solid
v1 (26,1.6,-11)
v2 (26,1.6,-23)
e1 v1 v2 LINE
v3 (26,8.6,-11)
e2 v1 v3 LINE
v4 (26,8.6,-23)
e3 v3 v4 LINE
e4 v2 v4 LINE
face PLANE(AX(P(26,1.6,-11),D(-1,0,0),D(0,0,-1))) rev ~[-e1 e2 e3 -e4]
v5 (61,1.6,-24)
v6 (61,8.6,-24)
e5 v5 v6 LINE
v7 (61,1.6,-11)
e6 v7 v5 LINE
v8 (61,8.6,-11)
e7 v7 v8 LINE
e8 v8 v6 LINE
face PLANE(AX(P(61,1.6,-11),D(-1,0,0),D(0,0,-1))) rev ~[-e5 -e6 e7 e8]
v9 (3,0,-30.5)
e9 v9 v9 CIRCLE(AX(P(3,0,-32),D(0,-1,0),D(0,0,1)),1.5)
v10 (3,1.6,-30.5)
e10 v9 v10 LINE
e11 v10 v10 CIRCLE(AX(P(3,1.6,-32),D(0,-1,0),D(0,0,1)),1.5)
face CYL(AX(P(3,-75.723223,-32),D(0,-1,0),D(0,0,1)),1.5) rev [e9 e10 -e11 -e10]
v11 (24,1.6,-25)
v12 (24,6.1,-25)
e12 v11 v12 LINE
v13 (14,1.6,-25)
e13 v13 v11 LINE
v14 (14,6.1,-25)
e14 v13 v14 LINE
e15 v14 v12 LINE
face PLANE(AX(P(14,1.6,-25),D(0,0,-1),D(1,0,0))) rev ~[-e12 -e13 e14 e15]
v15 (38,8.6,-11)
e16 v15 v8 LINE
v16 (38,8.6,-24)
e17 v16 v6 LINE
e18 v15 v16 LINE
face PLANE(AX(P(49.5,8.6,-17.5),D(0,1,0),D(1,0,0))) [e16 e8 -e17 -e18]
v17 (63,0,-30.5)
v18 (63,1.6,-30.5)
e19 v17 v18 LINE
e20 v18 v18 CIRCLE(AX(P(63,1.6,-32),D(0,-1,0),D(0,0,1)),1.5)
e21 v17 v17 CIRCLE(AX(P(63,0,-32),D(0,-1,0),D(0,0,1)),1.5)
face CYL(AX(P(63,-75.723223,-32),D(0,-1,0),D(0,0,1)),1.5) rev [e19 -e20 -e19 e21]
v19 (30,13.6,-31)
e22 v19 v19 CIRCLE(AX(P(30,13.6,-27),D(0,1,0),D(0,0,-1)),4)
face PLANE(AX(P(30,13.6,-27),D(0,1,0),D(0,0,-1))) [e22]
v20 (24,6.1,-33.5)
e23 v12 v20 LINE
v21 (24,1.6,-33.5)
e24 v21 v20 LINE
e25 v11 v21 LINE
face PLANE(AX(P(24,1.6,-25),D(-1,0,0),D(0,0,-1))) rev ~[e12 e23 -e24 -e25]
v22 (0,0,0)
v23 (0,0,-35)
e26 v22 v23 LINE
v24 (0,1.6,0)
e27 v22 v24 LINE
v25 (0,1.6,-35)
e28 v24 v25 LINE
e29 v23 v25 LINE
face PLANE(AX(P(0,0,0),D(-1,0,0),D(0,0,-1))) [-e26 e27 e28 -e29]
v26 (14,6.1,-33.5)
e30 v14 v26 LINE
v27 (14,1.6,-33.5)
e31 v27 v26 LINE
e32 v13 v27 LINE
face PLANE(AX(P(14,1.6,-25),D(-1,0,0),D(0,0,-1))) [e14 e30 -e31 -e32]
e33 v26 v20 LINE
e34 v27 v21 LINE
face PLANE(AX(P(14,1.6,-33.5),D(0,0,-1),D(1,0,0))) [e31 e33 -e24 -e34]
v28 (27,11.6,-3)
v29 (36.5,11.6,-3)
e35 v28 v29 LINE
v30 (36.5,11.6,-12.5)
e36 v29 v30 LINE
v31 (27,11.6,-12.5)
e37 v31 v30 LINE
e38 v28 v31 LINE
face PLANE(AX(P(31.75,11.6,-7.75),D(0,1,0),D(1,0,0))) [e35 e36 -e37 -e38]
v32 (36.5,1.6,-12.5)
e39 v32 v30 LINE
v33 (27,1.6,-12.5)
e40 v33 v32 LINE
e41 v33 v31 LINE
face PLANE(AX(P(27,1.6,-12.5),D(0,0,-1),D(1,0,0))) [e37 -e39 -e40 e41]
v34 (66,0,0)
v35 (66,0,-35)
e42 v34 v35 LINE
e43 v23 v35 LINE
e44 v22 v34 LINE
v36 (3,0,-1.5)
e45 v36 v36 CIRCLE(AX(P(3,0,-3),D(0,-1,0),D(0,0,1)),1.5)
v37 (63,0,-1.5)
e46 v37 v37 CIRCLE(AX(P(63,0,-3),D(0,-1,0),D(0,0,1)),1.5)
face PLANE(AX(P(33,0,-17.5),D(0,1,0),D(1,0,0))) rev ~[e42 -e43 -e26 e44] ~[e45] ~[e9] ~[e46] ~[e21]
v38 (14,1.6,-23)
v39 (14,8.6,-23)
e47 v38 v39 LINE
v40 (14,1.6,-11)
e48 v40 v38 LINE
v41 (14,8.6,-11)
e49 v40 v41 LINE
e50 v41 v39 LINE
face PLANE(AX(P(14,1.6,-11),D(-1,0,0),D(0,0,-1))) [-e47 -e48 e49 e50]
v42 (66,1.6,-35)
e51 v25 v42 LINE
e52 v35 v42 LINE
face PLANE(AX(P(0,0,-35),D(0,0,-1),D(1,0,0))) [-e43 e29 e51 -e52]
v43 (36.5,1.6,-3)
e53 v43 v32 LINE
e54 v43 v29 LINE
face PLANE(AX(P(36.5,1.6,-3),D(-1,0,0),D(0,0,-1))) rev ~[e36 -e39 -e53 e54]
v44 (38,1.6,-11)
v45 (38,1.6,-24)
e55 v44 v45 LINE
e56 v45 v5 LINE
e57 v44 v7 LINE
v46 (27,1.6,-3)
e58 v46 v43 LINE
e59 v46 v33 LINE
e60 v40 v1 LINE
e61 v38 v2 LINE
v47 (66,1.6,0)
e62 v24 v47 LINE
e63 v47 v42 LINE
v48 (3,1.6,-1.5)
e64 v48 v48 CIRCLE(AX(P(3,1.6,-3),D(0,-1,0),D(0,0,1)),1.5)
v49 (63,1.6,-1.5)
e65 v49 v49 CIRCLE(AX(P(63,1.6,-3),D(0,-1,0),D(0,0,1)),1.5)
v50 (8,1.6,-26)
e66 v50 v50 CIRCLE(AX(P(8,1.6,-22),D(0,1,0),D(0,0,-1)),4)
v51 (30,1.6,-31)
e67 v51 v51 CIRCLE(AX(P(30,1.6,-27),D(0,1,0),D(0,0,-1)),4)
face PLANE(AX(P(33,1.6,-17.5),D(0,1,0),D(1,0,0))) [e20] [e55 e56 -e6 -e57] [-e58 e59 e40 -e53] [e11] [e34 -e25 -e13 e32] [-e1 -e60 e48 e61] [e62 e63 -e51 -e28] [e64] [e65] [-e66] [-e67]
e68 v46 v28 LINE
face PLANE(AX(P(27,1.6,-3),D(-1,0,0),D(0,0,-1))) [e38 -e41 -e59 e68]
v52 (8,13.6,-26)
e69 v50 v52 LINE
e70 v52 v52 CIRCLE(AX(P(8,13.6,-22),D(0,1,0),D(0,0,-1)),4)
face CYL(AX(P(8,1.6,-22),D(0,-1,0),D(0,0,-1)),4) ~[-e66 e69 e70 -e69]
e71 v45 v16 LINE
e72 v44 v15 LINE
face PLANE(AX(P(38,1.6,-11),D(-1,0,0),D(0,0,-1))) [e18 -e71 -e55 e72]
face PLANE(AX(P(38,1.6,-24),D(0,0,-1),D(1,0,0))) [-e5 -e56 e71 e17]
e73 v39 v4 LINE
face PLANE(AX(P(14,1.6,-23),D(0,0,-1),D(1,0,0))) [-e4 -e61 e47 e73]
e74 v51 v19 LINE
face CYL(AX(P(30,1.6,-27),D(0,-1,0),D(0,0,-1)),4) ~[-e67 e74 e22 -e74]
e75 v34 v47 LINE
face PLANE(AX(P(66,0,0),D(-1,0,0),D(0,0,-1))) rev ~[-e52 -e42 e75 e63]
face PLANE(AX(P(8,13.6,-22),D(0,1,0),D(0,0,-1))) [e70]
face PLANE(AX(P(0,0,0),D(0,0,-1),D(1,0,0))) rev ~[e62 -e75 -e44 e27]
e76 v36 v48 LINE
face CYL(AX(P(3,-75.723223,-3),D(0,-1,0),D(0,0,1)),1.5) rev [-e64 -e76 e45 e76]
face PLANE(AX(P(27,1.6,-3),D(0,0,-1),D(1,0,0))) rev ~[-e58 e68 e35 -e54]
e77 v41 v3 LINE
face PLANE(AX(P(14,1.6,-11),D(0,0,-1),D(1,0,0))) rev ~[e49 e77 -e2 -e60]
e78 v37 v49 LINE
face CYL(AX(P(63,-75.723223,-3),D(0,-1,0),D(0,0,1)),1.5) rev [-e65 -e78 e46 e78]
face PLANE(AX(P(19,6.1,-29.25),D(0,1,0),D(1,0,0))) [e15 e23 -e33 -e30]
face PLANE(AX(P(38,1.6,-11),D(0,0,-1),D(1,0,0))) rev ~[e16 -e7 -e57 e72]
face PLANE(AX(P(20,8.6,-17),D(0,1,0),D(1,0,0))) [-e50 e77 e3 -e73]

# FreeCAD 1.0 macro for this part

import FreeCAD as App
import Part
import Sketcher

V = App.Vector


def add_polygon(sketch, points):
    """Adds a closed chain of lines whose ends are joined by coincident constraints."""
    first, n = sketch.GeometryCount, len(points)
    for a, b in zip(points, points[1:] + points[:1]):
        sketch.addGeometry(Part.LineSegment(App.Vector(*a, 0), App.Vector(*b, 0)), False)
    for i in range(n):
        sketch.addConstraint(Sketcher.Constraint("Coincident", first + i, 2, first + (i + 1) % n, 1))

doc = App.newDocument("Part")
params = doc.addObject("Spreadsheet::Sheet", "Params")
for row, (alias, value) in enumerate([
    ("sketch1_width", "66 mm"),
    ("sketch1_height", "35 mm"),
    ("pad1_length", "1.6 mm"),
    ("sketch2_diameter", "3 mm"),
    ("sketch3_diameter", "3 mm"),
    ("sketch4_diameter", "3 mm"),
    ("sketch5_diameter", "3 mm"),
    ("sketch6_width", "23 mm"),
    ("sketch6_height", "13 mm"),
    ("pad2_length", "7 mm"),
    ("sketch7_width", "12 mm"),
    ("pad3_length", "7 mm"),
    ("sketch8_diameter", "8 mm"),
    ("pad4_length", "12 mm"),
    ("sketch9_diameter", "8 mm"),
    ("pad5_length", "12 mm"),
    ("sketch10_width", "9.5 mm"),
    ("pad6_length", "10 mm"),
    ("sketch11_width", "10 mm"),
    ("sketch11_height", "8.5 mm"),
    ("pad7_length", "4.5 mm"),
], start=1):
    params.set(f"A{row}", alias)
    params.set(f"B{row}", "=" + value)
    params.setAlias(f"B{row}", alias)

body = doc.addObject("PartDesign::Body", "Body")

# Sketch on XZ plane
sketch1 = doc.addObject("Sketcher::SketchObject", "Sketch")
body.addObject(sketch1)
sketch1.AttachmentSupport = (doc.XZ_Plane, [""])
sketch1.MapMode = "FlatFace"
add_polygon(sketch1, [(0, -35), (0, 0), (66, 0), (66, -35)])  # lines 0-3
sketch1.addConstraint(Sketcher.Constraint("Vertical", 0))
sketch1.addConstraint(Sketcher.Constraint("Horizontal", 1))
sketch1.addConstraint(Sketcher.Constraint("Vertical", 2))
sketch1.addConstraint(Sketcher.Constraint("Horizontal", 3))
sketch1.addConstraint(Sketcher.Constraint("Coincident", 0, 2, -1, 1))
sketch1.addConstraint(Sketcher.Constraint("DistanceX", 1, 1, 1, 2, 66.0))
sketch1.addConstraint(Sketcher.Constraint("DistanceY", 0, 1, 0, 2, 35.0))
sketch1.setExpression("Constraints[9]", "Params.sketch1_width")
sketch1.setExpression("Constraints[10]", "Params.sketch1_height")
pad1 = doc.addObject("PartDesign::Pad", "Pad")
body.addObject(pad1)
pad1.Profile = sketch1
pad1.setExpression("Length", "Params.pad1_length")
pad1.Reversed = True

# Sketch on XZ plane
sketch2 = doc.addObject("Sketcher::SketchObject", "Sketch001")
body.addObject(sketch2)
sketch2.AttachmentSupport = (doc.XZ_Plane, [""])
sketch2.MapMode = "FlatFace"
sketch2.addGeometry(Part.Circle(V(3, -3, 0), V(0, 0, 1), 1.5), False)
sketch2.addConstraint(Sketcher.Constraint("Diameter", 0, 3.0))
sketch2.addConstraint(Sketcher.Constraint("DistanceX", -1, 1, 0, 3, 3.0))
sketch2.addConstraint(Sketcher.Constraint("DistanceY", 0, 3, -1, 1, 3.0))
sketch2.setExpression("Constraints[0]", "Params.sketch2_diameter")
pocket1 = doc.addObject("PartDesign::Pocket", "Pocket")
body.addObject(pocket1)
pocket1.Profile = sketch2
pocket1.Type = "ThroughAll"
pocket1.Midplane = True

# Sketch on XZ plane
sketch3 = doc.addObject("Sketcher::SketchObject", "Sketch002")
body.addObject(sketch3)
sketch3.AttachmentSupport = (doc.XZ_Plane, [""])
sketch3.MapMode = "FlatFace"
sketch3.addGeometry(Part.Circle(V(63, -3, 0), V(0, 0, 1), 1.5), False)
sketch3.addConstraint(Sketcher.Constraint("Diameter", 0, 3.0))
sketch3.addConstraint(Sketcher.Constraint("DistanceX", -1, 1, 0, 3, 63.0))
sketch3.addConstraint(Sketcher.Constraint("DistanceY", 0, 3, -1, 1, 3.0))
sketch3.setExpression("Constraints[0]", "Params.sketch3_diameter")
pocket2 = doc.addObject("PartDesign::Pocket", "Pocket001")
body.addObject(pocket2)
pocket2.Profile = sketch3
pocket2.Type = "ThroughAll"
pocket2.Midplane = True

# Sketch on XZ plane
sketch4 = doc.addObject("Sketcher::SketchObject", "Sketch003")
body.addObject(sketch4)
sketch4.AttachmentSupport = (doc.XZ_Plane, [""])
sketch4.MapMode = "FlatFace"
sketch4.addGeometry(Part.Circle(V(3, -32, 0), V(0, 0, 1), 1.5), False)
sketch4.addConstraint(Sketcher.Constraint("Diameter", 0, 3.0))
sketch4.addConstraint(Sketcher.Constraint("DistanceX", -1, 1, 0, 3, 3.0))
sketch4.addConstraint(Sketcher.Constraint("DistanceY", 0, 3, -1, 1, 32.0))
sketch4.setExpression("Constraints[0]", "Params.sketch4_diameter")
pocket3 = doc.addObject("PartDesign::Pocket", "Pocket002")
body.addObject(pocket3)
pocket3.Profile = sketch4
pocket3.Type = "ThroughAll"
pocket3.Midplane = True

# Sketch on XZ plane
sketch5 = doc.addObject("Sketcher::SketchObject", "Sketch004")
body.addObject(sketch5)
sketch5.AttachmentSupport = (doc.XZ_Plane, [""])
sketch5.MapMode = "FlatFace"
sketch5.addGeometry(Part.Circle(V(63, -32, 0), V(0, 0, 1), 1.5), False)
sketch5.addConstraint(Sketcher.Constraint("Diameter", 0, 3.0))
sketch5.addConstraint(Sketcher.Constraint("DistanceX", -1, 1, 0, 3, 63.0))
sketch5.addConstraint(Sketcher.Constraint("DistanceY", 0, 3, -1, 1, 32.0))
sketch5.setExpression("Constraints[0]", "Params.sketch5_diameter")
pocket4 = doc.addObject("PartDesign::Pocket", "Pocket003")
body.addObject(pocket4)
pocket4.Profile = sketch5
pocket4.Type = "ThroughAll"
pocket4.Midplane = True

# Sketch on XZ plane
sketch6 = doc.addObject("Sketcher::SketchObject", "Sketch005")
body.addObject(sketch6)
sketch6.AttachmentSupport = (doc.XZ_Plane, [""])
sketch6.MapMode = "FlatFace"
sketch6.AttachmentOffset = App.Placement(V(0, 0, -1.6), App.Rotation())
add_polygon(sketch6, [(38, -24), (38, -11), (61, -11), (61, -24)])  # lines 0-3
sketch6.addConstraint(Sketcher.Constraint("Vertical", 0))
sketch6.addConstraint(Sketcher.Constraint("Horizontal", 1))
sketch6.addConstraint(Sketcher.Constraint("Vertical", 2))
sketch6.addConstraint(Sketcher.Constraint("Horizontal", 3))
sketch6.addConstraint(Sketcher.Constraint("DistanceX", 1, 1, 1, 2, 23.0))
sketch6.addConstraint(Sketcher.Constraint("DistanceY", 0, 1, 0, 2, 13.0))
sketch6.addConstraint(Sketcher.Constraint("DistanceX", -1, 1, 0, 2, 38.0))
sketch6.addConstraint(Sketcher.Constraint("DistanceY", 0, 2, -1, 1, 11.0))
sketch6.setExpression("Constraints[8]", "Params.sketch6_width")
sketch6.setExpression("Constraints[9]", "Params.sketch6_height")
pad2 = doc.addObject("PartDesign::Pad", "Pad001")
body.addObject(pad2)
pad2.Profile = sketch6
pad2.setExpression("Length", "Params.pad2_length")
pad2.Reversed = True

# Sketch on XZ plane
sketch7 = doc.addObject("Sketcher::SketchObject", "Sketch006")
body.addObject(sketch7)
sketch7.AttachmentSupport = (doc.XZ_Plane, [""])
sketch7.MapMode = "FlatFace"
sketch7.AttachmentOffset = App.Placement(V(0, 0, -1.6), App.Rotation())
add_polygon(sketch7, [(14, -23), (14, -11), (26, -11), (26, -23)])  # lines 0-3
sketch7.addConstraint(Sketcher.Constraint("Vertical", 0))
sketch7.addConstraint(Sketcher.Constraint("Horizontal", 1))
sketch7.addConstraint(Sketcher.Constraint("Vertical", 2))
sketch7.addConstraint(Sketcher.Constraint("Horizontal", 3))
sketch7.addConstraint(Sketcher.Constraint("Equal", 3, 0))
sketch7.addConstraint(Sketcher.Constraint("DistanceX", 1, 1, 1, 2, 12.0))
sketch7.addConstraint(Sketcher.Constraint("DistanceX", -1, 1, 0, 2, 14.0))
sketch7.addConstraint(Sketcher.Constraint("DistanceY", 0, 2, -1, 1, 11.0))
sketch7.setExpression("Constraints[9]", "Params.sketch7_width")
pad3 = doc.addObject("PartDesign::Pad", "Pad002")
body.addObject(pad3)
pad3.Profile = sketch7
pad3.setExpression("Length", "Params.pad3_length")
pad3.Reversed = True

# Sketch on XZ plane
sketch8 = doc.addObject("Sketcher::SketchObject", "Sketch007")
body.addObject(sketch8)
sketch8.AttachmentSupport = (doc.XZ_Plane, [""])
sketch8.MapMode = "FlatFace"
sketch8.AttachmentOffset = App.Placement(V(0, 0, -1.6), App.Rotation())
sketch8.addGeometry(Part.Circle(V(8, -22, 0), V(0, 0, 1), 4), False)
sketch8.addConstraint(Sketcher.Constraint("Diameter", 0, 8.0))
sketch8.addConstraint(Sketcher.Constraint("DistanceX", -1, 1, 0, 3, 8.0))
sketch8.addConstraint(Sketcher.Constraint("DistanceY", 0, 3, -1, 1, 22.0))
sketch8.setExpression("Constraints[0]", "Params.sketch8_diameter")
pad4 = doc.addObject("PartDesign::Pad", "Pad003")
body.addObject(pad4)
pad4.Profile = sketch8
pad4.setExpression("Length", "Params.pad4_length")
pad4.Reversed = True

# Sketch on XZ plane
sketch9 = doc.addObject("Sketcher::SketchObject", "Sketch008")
body.addObject(sketch9)
sketch9.AttachmentSupport = (doc.XZ_Plane, [""])
sketch9.MapMode = "FlatFace"
sketch9.AttachmentOffset = App.Placement(V(0, 0, -1.6), App.Rotation())
sketch9.addGeometry(Part.Circle(V(30, -27, 0), V(0, 0, 1), 4), False)
sketch9.addConstraint(Sketcher.Constraint("Diameter", 0, 8.0))
sketch9.addConstraint(Sketcher.Constraint("DistanceX", -1, 1, 0, 3, 30.0))
sketch9.addConstraint(Sketcher.Constraint("DistanceY", 0, 3, -1, 1, 27.0))
sketch9.setExpression("Constraints[0]", "Params.sketch9_diameter")
pad5 = doc.addObject("PartDesign::Pad", "Pad004")
body.addObject(pad5)
pad5.Profile = sketch9
pad5.setExpression("Length", "Params.pad5_length")
pad5.Reversed = True

# Sketch on XZ plane
sketch10 = doc.addObject("Sketcher::SketchObject", "Sketch009")
body.addObject(sketch10)
sketch10.AttachmentSupport = (doc.XZ_Plane, [""])
sketch10.MapMode = "FlatFace"
sketch10.AttachmentOffset = App.Placement(V(0, 0, -1.6), App.Rotation())
add_polygon(sketch10, [(27, -12.5), (27, -3), (36.5, -3), (36.5, -12.5)])  # lines 0-3
sketch10.addConstraint(Sketcher.Constraint("Vertical", 0))
sketch10.addConstraint(Sketcher.Constraint("Horizontal", 1))
sketch10.addConstraint(Sketcher.Constraint("Vertical", 2))
sketch10.addConstraint(Sketcher.Constraint("Horizontal", 3))
sketch10.addConstraint(Sketcher.Constraint("Equal", 3, 0))
sketch10.addConstraint(Sketcher.Constraint("DistanceX", 1, 1, 1, 2, 9.5))
sketch10.addConstraint(Sketcher.Constraint("DistanceX", -1, 1, 0, 2, 27.0))
sketch10.addConstraint(Sketcher.Constraint("DistanceY", 0, 2, -1, 1, 3.0))
sketch10.setExpression("Constraints[9]", "Params.sketch10_width")
pad6 = doc.addObject("PartDesign::Pad", "Pad005")
body.addObject(pad6)
pad6.Profile = sketch10
pad6.setExpression("Length", "Params.pad6_length")
pad6.Reversed = True

# Sketch on XZ plane
sketch11 = doc.addObject("Sketcher::SketchObject", "Sketch010")
body.addObject(sketch11)
sketch11.AttachmentSupport = (doc.XZ_Plane, [""])
sketch11.MapMode = "FlatFace"
sketch11.AttachmentOffset = App.Placement(V(0, 0, -1.6), App.Rotation())
add_polygon(sketch11, [(14, -33.5), (14, -25), (24, -25), (24, -33.5)])  # lines 0-3
sketch11.addConstraint(Sketcher.Constraint("Vertical", 0))
sketch11.addConstraint(Sketcher.Constraint("Horizontal", 1))
sketch11.addConstraint(Sketcher.Constraint("Vertical", 2))
sketch11.addConstraint(Sketcher.Constraint("Horizontal", 3))
sketch11.addConstraint(Sketcher.Constraint("DistanceX", 1, 1, 1, 2, 10.0))
sketch11.addConstraint(Sketcher.Constraint("DistanceY", 0, 1, 0, 2, 8.5))
sketch11.addConstraint(Sketcher.Constraint("DistanceX", -1, 1, 0, 2, 14.0))
sketch11.addConstraint(Sketcher.Constraint("DistanceY", 0, 2, -1, 1, 25.0))
sketch11.setExpression("Constraints[8]", "Params.sketch11_width")
sketch11.setExpression("Constraints[9]", "Params.sketch11_height")
pad7 = doc.addObject("PartDesign::Pad", "Pad006")
body.addObject(pad7)
pad7.Profile = sketch11
pad7.setExpression("Length", "Params.pad7_length")
pad7.Reversed = True

doc.recompute()
